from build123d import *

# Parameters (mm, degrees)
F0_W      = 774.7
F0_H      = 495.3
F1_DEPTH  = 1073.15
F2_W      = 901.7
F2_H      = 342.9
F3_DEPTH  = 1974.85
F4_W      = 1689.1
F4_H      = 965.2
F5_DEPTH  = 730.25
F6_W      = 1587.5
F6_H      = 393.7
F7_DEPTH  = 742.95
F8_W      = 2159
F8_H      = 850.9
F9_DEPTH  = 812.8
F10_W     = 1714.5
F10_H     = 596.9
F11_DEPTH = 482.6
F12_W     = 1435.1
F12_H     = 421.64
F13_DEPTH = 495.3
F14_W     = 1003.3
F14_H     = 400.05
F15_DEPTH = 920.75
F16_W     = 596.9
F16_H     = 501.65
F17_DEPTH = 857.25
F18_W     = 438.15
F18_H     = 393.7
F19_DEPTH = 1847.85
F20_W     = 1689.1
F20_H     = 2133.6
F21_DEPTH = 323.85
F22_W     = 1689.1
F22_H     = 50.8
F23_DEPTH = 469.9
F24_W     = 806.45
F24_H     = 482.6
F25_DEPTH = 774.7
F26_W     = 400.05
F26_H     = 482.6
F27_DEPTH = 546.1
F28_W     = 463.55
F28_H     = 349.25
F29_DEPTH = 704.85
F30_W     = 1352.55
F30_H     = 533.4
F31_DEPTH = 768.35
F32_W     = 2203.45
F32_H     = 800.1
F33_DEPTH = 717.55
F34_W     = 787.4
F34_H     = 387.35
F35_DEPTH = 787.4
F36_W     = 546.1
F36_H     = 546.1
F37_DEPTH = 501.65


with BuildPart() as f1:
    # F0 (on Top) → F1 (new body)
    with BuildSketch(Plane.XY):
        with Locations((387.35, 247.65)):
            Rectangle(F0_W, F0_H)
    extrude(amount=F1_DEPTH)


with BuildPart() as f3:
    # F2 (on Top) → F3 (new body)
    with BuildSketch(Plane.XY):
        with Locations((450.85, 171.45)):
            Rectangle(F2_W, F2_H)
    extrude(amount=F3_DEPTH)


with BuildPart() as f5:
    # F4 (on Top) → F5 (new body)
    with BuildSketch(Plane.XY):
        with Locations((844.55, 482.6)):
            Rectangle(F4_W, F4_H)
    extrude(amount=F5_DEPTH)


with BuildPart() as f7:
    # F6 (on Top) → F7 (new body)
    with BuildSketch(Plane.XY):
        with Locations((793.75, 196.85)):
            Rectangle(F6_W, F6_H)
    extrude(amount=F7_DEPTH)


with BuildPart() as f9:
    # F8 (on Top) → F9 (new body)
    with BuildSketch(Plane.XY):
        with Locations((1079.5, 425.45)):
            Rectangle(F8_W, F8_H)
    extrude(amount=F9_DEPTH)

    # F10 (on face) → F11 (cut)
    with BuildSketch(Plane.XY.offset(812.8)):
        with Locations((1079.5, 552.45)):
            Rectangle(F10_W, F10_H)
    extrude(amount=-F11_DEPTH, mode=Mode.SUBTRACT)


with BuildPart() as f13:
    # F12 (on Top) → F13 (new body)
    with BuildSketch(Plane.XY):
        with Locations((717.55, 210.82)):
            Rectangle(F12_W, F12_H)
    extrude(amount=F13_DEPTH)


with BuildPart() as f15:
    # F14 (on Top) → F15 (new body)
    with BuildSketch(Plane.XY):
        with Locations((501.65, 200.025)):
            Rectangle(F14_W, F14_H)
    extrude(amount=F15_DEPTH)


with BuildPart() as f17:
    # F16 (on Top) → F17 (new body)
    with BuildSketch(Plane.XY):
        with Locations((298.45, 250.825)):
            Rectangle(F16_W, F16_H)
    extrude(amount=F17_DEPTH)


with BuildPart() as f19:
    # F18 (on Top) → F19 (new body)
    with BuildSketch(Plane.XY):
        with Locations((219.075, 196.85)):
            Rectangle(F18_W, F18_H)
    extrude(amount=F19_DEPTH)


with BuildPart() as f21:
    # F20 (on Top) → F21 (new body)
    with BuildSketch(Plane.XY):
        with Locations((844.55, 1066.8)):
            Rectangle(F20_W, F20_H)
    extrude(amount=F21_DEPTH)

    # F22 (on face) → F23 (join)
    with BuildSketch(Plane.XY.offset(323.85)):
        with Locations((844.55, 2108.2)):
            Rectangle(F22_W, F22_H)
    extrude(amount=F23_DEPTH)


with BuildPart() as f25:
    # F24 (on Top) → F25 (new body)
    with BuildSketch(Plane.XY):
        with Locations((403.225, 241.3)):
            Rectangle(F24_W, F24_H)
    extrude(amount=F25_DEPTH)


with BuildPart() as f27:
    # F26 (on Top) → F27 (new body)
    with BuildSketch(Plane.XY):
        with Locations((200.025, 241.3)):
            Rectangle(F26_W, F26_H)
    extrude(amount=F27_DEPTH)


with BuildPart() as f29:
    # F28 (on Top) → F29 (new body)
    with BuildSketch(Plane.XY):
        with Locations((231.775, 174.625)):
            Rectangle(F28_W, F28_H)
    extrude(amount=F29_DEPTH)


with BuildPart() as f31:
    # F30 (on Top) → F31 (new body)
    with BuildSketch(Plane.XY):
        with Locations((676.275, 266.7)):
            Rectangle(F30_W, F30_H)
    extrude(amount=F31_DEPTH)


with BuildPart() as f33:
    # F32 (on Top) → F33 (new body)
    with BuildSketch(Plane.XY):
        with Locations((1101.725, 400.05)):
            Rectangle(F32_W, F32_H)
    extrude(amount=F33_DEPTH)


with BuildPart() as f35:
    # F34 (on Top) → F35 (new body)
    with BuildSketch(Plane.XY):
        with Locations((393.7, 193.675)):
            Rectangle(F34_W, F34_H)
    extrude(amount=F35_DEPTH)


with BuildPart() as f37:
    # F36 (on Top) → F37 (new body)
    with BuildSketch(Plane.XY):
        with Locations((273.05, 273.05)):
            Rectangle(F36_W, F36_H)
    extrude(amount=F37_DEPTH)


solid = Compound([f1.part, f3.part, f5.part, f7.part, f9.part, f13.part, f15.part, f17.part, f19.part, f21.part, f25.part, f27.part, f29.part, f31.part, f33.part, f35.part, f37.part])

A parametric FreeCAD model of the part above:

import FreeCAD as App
import Part
import Sketcher
from FreeCAD import Vector
Q = App.Units.Quantity

doc = App.newDocument("Part")
body = doc.addObject("PartDesign::Body", "Body")

# Sketch on XY plane
sketch1 = body.newObject("Sketcher::SketchObject", "Sketch")
sketch1.AttachmentSupport = (doc.getObject("XY_Plane"), [""])
sketch1.MapMode = "FlatFace"
sketch1.addGeometry([
    Part.LineSegment(Vector(0, 495, 0), Vector(0, 0, 0)),
    Part.LineSegment(Vector(0, 0, 0), Vector(775, 0, 0)),
    Part.LineSegment(Vector(775, 0, 0), Vector(775, 495, 0)),
    Part.LineSegment(Vector(775, 495, 0), Vector(0, 495, 0)),
], False)
sketch1.addConstraint([
    Sketcher.Constraint("Coincident", 0, 2, 1, 1),
    Sketcher.Constraint("Coincident", 1, 2, 2, 1),
    Sketcher.Constraint("Coincident", 2, 2, 3, 1),
    Sketcher.Constraint("Coincident", 3, 2, 0, 1),
    Sketcher.Constraint("Vertical", 0),
    Sketcher.Constraint("Horizontal", 1),
    Sketcher.Constraint("Vertical", 2),
    Sketcher.Constraint("Horizontal", 3),
    Sketcher.Constraint("Coincident", 0, 2, -1, 1),
    Sketcher.Constraint("DistanceX", 1, 1, 1, 2, Q("30.5 in")),
    Sketcher.Constraint("DistanceY", 0, 2, 0, 1, Q("19.5 in")),
])
pad1 = body.newObject("PartDesign::Pad", "Pad")
pad1.Profile = sketch1
pad1.Length = Q("42.25 in")
body2 = doc.addObject("PartDesign::Body", "Body001")

# Sketch on XY plane
sketch2 = body2.newObject("Sketcher::SketchObject", "Sketch001")
sketch2.AttachmentSupport = (doc.getObject("XY_Plane001"), [""])
sketch2.MapMode = "FlatFace"
sketch2.addGeometry([
    Part.LineSegment(Vector(0, 343, 0), Vector(0, 0, 0)),
    Part.LineSegment(Vector(0, 0, 0), Vector(902, 0, 0)),
    Part.LineSegment(Vector(902, 0, 0), Vector(902, 343, 0)),
    Part.LineSegment(Vector(902, 343, 0), Vector(0, 343, 0)),
], False)
sketch2.addConstraint([
    Sketcher.Constraint("Coincident", 0, 2, 1, 1),
    Sketcher.Constraint("Coincident", 1, 2, 2, 1),
    Sketcher.Constraint("Coincident", 2, 2, 3, 1),
    Sketcher.Constraint("Coincident", 3, 2, 0, 1),
    Sketcher.Constraint("Vertical", 0),
    Sketcher.Constraint("Horizontal", 1),
    Sketcher.Constraint("Vertical", 2),
    Sketcher.Constraint("Horizontal", 3),
    Sketcher.Constraint("Coincident", 0, 2, -1, 1),
    Sketcher.Constraint("DistanceX", 1, 1, 1, 2, Q("35.5 in")),
    Sketcher.Constraint("DistanceY", 0, 2, 0, 1, Q("13.5 in")),
])
pad2 = body2.newObject("PartDesign::Pad", "Pad001")
pad2.Profile = sketch2
pad2.Length = Q("77.75 in")
body3 = doc.addObject("PartDesign::Body", "Body002")

# Sketch on XY plane
sketch3 = body3.newObject("Sketcher::SketchObject", "Sketch002")
sketch3.AttachmentSupport = (doc.getObject("XY_Plane002"), [""])
sketch3.MapMode = "FlatFace"
sketch3.addGeometry([
    Part.LineSegment(Vector(0, 965, 0), Vector(0, 0, 0)),
    Part.LineSegment(Vector(0, 0, 0), Vector(1689, 0, 0)),
    Part.LineSegment(Vector(1689, 0, 0), Vector(1689, 965, 0)),
    Part.LineSegment(Vector(1689, 965, 0), Vector(0, 965, 0)),
], False)
sketch3.addConstraint([
    Sketcher.Constraint("Coincident", 0, 2, 1, 1),
    Sketcher.Constraint("Coincident", 1, 2, 2, 1),
    Sketcher.Constraint("Coincident", 2, 2, 3, 1),
    Sketcher.Constraint("Coincident", 3, 2, 0, 1),
    Sketcher.Constraint("Vertical", 0),
    Sketcher.Constraint("Horizontal", 1),
    Sketcher.Constraint("Vertical", 2),
    Sketcher.Constraint("Horizontal", 3),
    Sketcher.Constraint("Coincident", 0, 2, -1, 1),
    Sketcher.Constraint("DistanceY", 0, 2, 0, 1, Q("38 in")),
    Sketcher.Constraint("DistanceX", 1, 1, 1, 2, Q("66.5 in")),
])
pad3 = body3.newObject("PartDesign::Pad", "Pad002")
pad3.Profile = sketch3
pad3.Length = Q("28.75 in")
body4 = doc.addObject("PartDesign::Body", "Body003")

# Sketch on XY plane
sketch4 = body4.newObject("Sketcher::SketchObject", "Sketch003")
sketch4.AttachmentSupport = (doc.getObject("XY_Plane003"), [""])
sketch4.MapMode = "FlatFace"
sketch4.addGeometry([
    Part.LineSegment(Vector(0, 394, 0), Vector(0, 0, 0)),
    Part.LineSegment(Vector(0, 0, 0), Vector(1588, 0, 0)),
    Part.LineSegment(Vector(1588, 0, 0), Vector(1588, 394, 0)),
    Part.LineSegment(Vector(1588, 394, 0), Vector(0, 394, 0)),
], False)
sketch4.addConstraint([
    Sketcher.Constraint("Coincident", 0, 2, 1, 1),
    Sketcher.Constraint("Coincident", 1, 2, 2, 1),
    Sketcher.Constraint("Coincident", 2, 2, 3, 1),
    Sketcher.Constraint("Coincident", 3, 2, 0, 1),
    Sketcher.Constraint("Vertical", 0),
    Sketcher.Constraint("Horizontal", 1),
    Sketcher.Constraint("Vertical", 2),
    Sketcher.Constraint("Horizontal", 3),
    Sketcher.Constraint("Coincident", 0, 2, -1, 1),
    Sketcher.Constraint("DistanceX", 1, 1, 1, 2, Q("62.5 in")),
    Sketcher.Constraint("DistanceY", 0, 2, 0, 1, Q("15.5 in")),
])
pad4 = body4.newObject("PartDesign::Pad", "Pad003")
pad4.Profile = sketch4
pad4.Length = Q("29.25 in")
body5 = doc.addObject("PartDesign::Body", "Body004")

# Sketch on XY plane
sketch5 = body5.newObject("Sketcher::SketchObject", "Sketch004")
sketch5.AttachmentSupport = (doc.getObject("XY_Plane004"), [""])
sketch5.MapMode = "FlatFace"
sketch5.addGeometry([
    Part.LineSegment(Vector(0, 851, 0), Vector(0, 0, 0)),
    Part.LineSegment(Vector(0, 0, 0), Vector(2159, 0, 0)),
    Part.LineSegment(Vector(2159, 0, 0), Vector(2159, 851, 0)),
    Part.LineSegment(Vector(2159, 851, 0), Vector(0, 851, 0)),
], False)
sketch5.addConstraint([
    Sketcher.Constraint("Coincident", 0, 2, 1, 1),
    Sketcher.Constraint("Coincident", 1, 2, 2, 1),
    Sketcher.Constraint("Coincident", 2, 2, 3, 1),
    Sketcher.Constraint("Coincident", 3, 2, 0, 1),
    Sketcher.Constraint("Vertical", 0),
    Sketcher.Constraint("Horizontal", 1),
    Sketcher.Constraint("Vertical", 2),
    Sketcher.Constraint("Horizontal", 3),
    Sketcher.Constraint("Coincident", 0, 2, -1, 1),
    Sketcher.Constraint("DistanceX", 1, 1, 1, 2, Q("85 in")),
    Sketcher.Constraint("DistanceY", 0, 2, 0, 1, Q("33.5 in")),
])
pad5 = body5.newObject("PartDesign::Pad", "Pad004")
pad5.Profile = sketch5
pad5.Length = Q("32 in")

# Sketch on XY plane
sketch6 = body5.newObject("Sketcher::SketchObject", "Sketch005")
sketch6.AttachmentSupport = (doc.getObject("XY_Plane004"), [""])
sketch6.MapMode = "FlatFace"
sketch6.AttachmentOffset = App.Placement(Vector(0, 0, 32 * 25.4), App.Rotation())
sketch6.addGeometry([
    Part.LineSegment(Vector(222, 851, 0), Vector(222, 254, 0)),
    Part.LineSegment(Vector(222, 254, 0), Vector(1937, 254, 0)),
    Part.LineSegment(Vector(1937, 254, 0), Vector(1937, 851, 0)),
    Part.LineSegment(Vector(1937, 851, 0), Vector(222, 851, 0)),
], False)
sketch6.addConstraint([
    Sketcher.Constraint("Coincident", 0, 2, 1, 1),
    Sketcher.Constraint("Coincident", 1, 2, 2, 1),
    Sketcher.Constraint("Coincident", 2, 2, 3, 1),
    Sketcher.Constraint("Coincident", 3, 2, 0, 1),
    Sketcher.Constraint("Vertical", 0),
    Sketcher.Constraint("Horizontal", 1),
    Sketcher.Constraint("Vertical", 2),
    Sketcher.Constraint("Horizontal", 3),
    Sketcher.Constraint("DistanceX", 1, 1, 1, 2, Q("67.5 in")),
    Sketcher.Constraint("DistanceY", 0, 2, 0, 1, Q("23.5 in")),
    Sketcher.Constraint("DistanceY", -1, 1, 0, 2, Q("10 in")),
    Sketcher.Constraint("DistanceX", -1, 1, 0, 2, Q("8.75 in")),
])
pocket1 = body5.newObject("PartDesign::Pocket", "Pocket")
pocket1.Profile = sketch6
pocket1.Length = Q("19 in")
body6 = doc.addObject("PartDesign::Body", "Body005")

# Sketch on XY plane
sketch7 = body6.newObject("Sketcher::SketchObject", "Sketch006")
sketch7.AttachmentSupport = (doc.getObject("XY_Plane005"), [""])
sketch7.MapMode = "FlatFace"
sketch7.addGeometry([
    Part.LineSegment(Vector(0, 422, 0), Vector(0, 0, 0)),
    Part.LineSegment(Vector(0, 0, 0), Vector(1435, 0, 0)),
    Part.LineSegment(Vector(1435, 0, 0), Vector(1435, 422, 0)),
    Part.LineSegment(Vector(1435, 422, 0), Vector(0, 422, 0)),
], False)
sketch7.addConstraint([
    Sketcher.Constraint("Coincident", 0, 2, 1, 1),
    Sketcher.Constraint("Coincident", 1, 2, 2, 1),
    Sketcher.Constraint("Coincident", 2, 2, 3, 1),
    Sketcher.Constraint("Coincident", 3, 2, 0, 1),
    Sketcher.Constraint("Vertical", 0),
    Sketcher.Constraint("Horizontal", 1),
    Sketcher.Constraint("Vertical", 2),
    Sketcher.Constraint("Horizontal", 3),
    Sketcher.Constraint("Coincident", 0, 2, -1, 1),
    Sketcher.Constraint("DistanceX", 1, 1, 1, 2, Q("56.5 in")),
    Sketcher.Constraint("DistanceY", 0, 2, 0, 1, Q("16.6 in")),
])
pad6 = body6.newObject("PartDesign::Pad", "Pad005")
pad6.Profile = sketch7
pad6.Length = Q("19.5 in")
body7 = doc.addObject("PartDesign::Body", "Body006")

# Sketch on XY plane
sketch8 = body7.newObject("Sketcher::SketchObject", "Sketch007")
sketch8.AttachmentSupport = (doc.getObject("XY_Plane006"), [""])
sketch8.MapMode = "FlatFace"
sketch8.addGeometry([
    Part.LineSegment(Vector(0, 400, 0), Vector(0, 0, 0)),
    Part.LineSegment(Vector(0, 0, 0), Vector(1003, 0, 0)),
    Part.LineSegment(Vector(1003, 0, 0), Vector(1003, 400, 0)),
    Part.LineSegment(Vector(1003, 400, 0), Vector(0, 400, 0)),
], False)
sketch8.addConstraint([
    Sketcher.Constraint("Coincident", 0, 2, 1, 1),
    Sketcher.Constraint("Coincident", 1, 2, 2, 1),
    Sketcher.Constraint("Coincident", 2, 2, 3, 1),
    Sketcher.Constraint("Coincident", 3, 2, 0, 1),
    Sketcher.Constraint("Vertical", 0),
    Sketcher.Constraint("Horizontal", 1),
    Sketcher.Constraint("Vertical", 2),
    Sketcher.Constraint("Horizontal", 3),
    Sketcher.Constraint("Coincident", 0, 2, -1, 1),
    Sketcher.Constraint("DistanceX", 1, 1, 1, 2, Q("39.5 in")),
    Sketcher.Constraint("DistanceY", 0, 2, 0, 1, Q("15.75 in")),
])
pad7 = body7.newObject("PartDesign::Pad", "Pad006")
pad7.Profile = sketch8
pad7.Length = Q("36.25 in")
body8 = doc.addObject("PartDesign::Body", "Body007")

# Sketch on XY plane
sketch9 = body8.newObject("Sketcher::SketchObject", "Sketch008")
sketch9.AttachmentSupport = (doc.getObject("XY_Plane007"), [""])
sketch9.MapMode = "FlatFace"
sketch9.addGeometry([
    Part.LineSegment(Vector(0, 502, 0), Vector(0, 0, 0)),
    Part.LineSegment(Vector(0, 0, 0), Vector(597, 0, 0)),
    Part.LineSegment(Vector(597, 0, 0), Vector(597, 502, 0)),
    Part.LineSegment(Vector(597, 502, 0), Vector(0, 502, 0)),
], False)
sketch9.addConstraint([
    Sketcher.Constraint("Coincident", 0, 2, 1, 1),
    Sketcher.Constraint("Coincident", 1, 2, 2, 1),
    Sketcher.Constraint("Coincident", 2, 2, 3, 1),
    Sketcher.Constraint("Coincident", 3, 2, 0, 1),
    Sketcher.Constraint("Vertical", 0),
    Sketcher.Constraint("Horizontal", 1),
    Sketcher.Constraint("Vertical", 2),
    Sketcher.Constraint("Horizontal", 3),
    Sketcher.Constraint("Coincident", 0, 2, -1, 1),
    Sketcher.Constraint("DistanceX", 1, 1, 1, 2, Q("23.5 in")),
    Sketcher.Constraint("DistanceY", 0, 2, 0, 1, Q("19.75 in")),
])
pad8 = body8.newObject("PartDesign::Pad", "Pad007")
pad8.Profile = sketch9
pad8.Length = Q("33.75 in")
body9 = doc.addObject("PartDesign::Body", "Body008")

# Sketch on XY plane
sketch10 = body9.newObject("Sketcher::SketchObject", "Sketch009")
sketch10.AttachmentSupport = (doc.getObject("XY_Plane008"), [""])
sketch10.MapMode = "FlatFace"
sketch10.addGeometry([
    Part.LineSegment(Vector(0, 394, 0), Vector(0, 0, 0)),
    Part.LineSegment(Vector(0, 0, 0), Vector(438, 0, 0)),
    Part.LineSegment(Vector(438, 0, 0), Vector(438, 394, 0)),
    Part.LineSegment(Vector(438, 394, 0), Vector(0, 394, 0)),
], False)
sketch10.addConstraint([
    Sketcher.Constraint("Coincident", 0, 2, 1, 1),
    Sketcher.Constraint("Coincident", 1, 2, 2, 1),
    Sketcher.Constraint("Coincident", 2, 2, 3, 1),
    Sketcher.Constraint("Coincident", 3, 2, 0, 1),
    Sketcher.Constraint("Vertical", 0),
    Sketcher.Constraint("Horizontal", 1),
    Sketcher.Constraint("Vertical", 2),
    Sketcher.Constraint("Horizontal", 3),
    Sketcher.Constraint("Coincident", 0, 2, -1, 1),
    Sketcher.Constraint("DistanceY", 0, 2, 0, 1, Q("15.5 in")),
    Sketcher.Constraint("DistanceX", 1, 1, 1, 2, Q("17.25 in")),
])
pad9 = body9.newObject("PartDesign::Pad", "Pad008")
pad9.Profile = sketch10
pad9.Length = Q("72.75 in")
body10 = doc.addObject("PartDesign::Body", "Body009")

# Sketch on XY plane
sketch11 = body10.newObject("Sketcher::SketchObject", "Sketch010")
sketch11.AttachmentSupport = (doc.getObject("XY_Plane009"), [""])
sketch11.MapMode = "FlatFace"
sketch11.addGeometry([
    Part.LineSegment(Vector(0, 2134, 0), Vector(0, 0, 0)),
    Part.LineSegment(Vector(0, 0, 0), Vector(1689, 0, 0)),
    Part.LineSegment(Vector(1689, 0, 0), Vector(1689, 2134, 0)),
    Part.LineSegment(Vector(1689, 2134, 0), Vector(0, 2134, 0)),
], False)
sketch11.addConstraint([
    Sketcher.Constraint("Coincident", 0, 2, 1, 1),
    Sketcher.Constraint("Coincident", 1, 2, 2, 1),
    Sketcher.Constraint("Coincident", 2, 2, 3, 1),
    Sketcher.Constraint("Coincident", 3, 2, 0, 1),
    Sketcher.Constraint("Vertical", 0),
    Sketcher.Constraint("Horizontal", 1),
    Sketcher.Constraint("Vertical", 2),
    Sketcher.Constraint("Horizontal", 3),
    Sketcher.Constraint("Coincident", 0, 2, -1, 1),
    Sketcher.Constraint("DistanceY", 0, 2, 0, 1, Q("84 in")),
    Sketcher.Constraint("DistanceX", 1, 1, 1, 2, Q("66.5 in")),
])
pad10 = body10.newObject("PartDesign::Pad", "Pad009")
pad10.Profile = sketch11
pad10.Length = Q("12.75 in")

# Sketch on XY plane
sketch12 = body10.newObject("Sketcher::SketchObject", "Sketch011")
sketch12.AttachmentSupport = (doc.getObject("XY_Plane009"), [""])
sketch12.MapMode = "FlatFace"
sketch12.AttachmentOffset = App.Placement(Vector(0, 0, 12.75 * 25.4), App.Rotation())
sketch12.addGeometry([
    Part.LineSegment(Vector(0, 2134, 0), Vector(0, 2083, 0)),
    Part.LineSegment(Vector(0, 2083, 0), Vector(1689, 2083, 0)),
    Part.LineSegment(Vector(1689, 2083, 0), Vector(1689, 2134, 0)),
    Part.LineSegment(Vector(1689, 2134, 0), Vector(0, 2134, 0)),
], False)
sketch12.addConstraint([
    Sketcher.Constraint("Coincident", 0, 2, 1, 1),
    Sketcher.Constraint("Coincident", 1, 2, 2, 1),
    Sketcher.Constraint("Coincident", 2, 2, 3, 1),
    Sketcher.Constraint("Coincident", 3, 2, 0, 1),
    Sketcher.Constraint("Vertical", 0),
    Sketcher.Constraint("Horizontal", 1),
    Sketcher.Constraint("Vertical", 2),
    Sketcher.Constraint("Horizontal", 3),
    Sketcher.Constraint("PointOnObject", 0, 2, -2),
    Sketcher.Constraint("DistanceY", 0, 2, 0, 1, Q("2 in")),
    Sketcher.Constraint("DistanceX", 1, 1, 1, 2, Q("66.5 in")),
    Sketcher.Constraint("DistanceY", -1, 1, 0, 2, Q("82 in")),
])
pad11 = body10.newObject("PartDesign::Pad", "Pad010")
pad11.Profile = sketch12
pad11.Length = Q("18.5 in")
body11 = doc.addObject("PartDesign::Body", "Body010")

# Sketch on XY plane
sketch13 = body11.newObject("Sketcher::SketchObject", "Sketch012")
sketch13.AttachmentSupport = (doc.getObject("XY_Plane010"), [""])
sketch13.MapMode = "FlatFace"
sketch13.addGeometry([
    Part.LineSegment(Vector(0, 483, 0), Vector(0, 0, 0)),
    Part.LineSegment(Vector(0, 0, 0), Vector(806, 0, 0)),
    Part.LineSegment(Vector(806, 0, 0), Vector(806, 483, 0)),
    Part.LineSegment(Vector(806, 483, 0), Vector(0, 483, 0)),
], False)
sketch13.addConstraint([
    Sketcher.Constraint("Coincident", 0, 2, 1, 1),
    Sketcher.Constraint("Coincident", 1, 2, 2, 1),
    Sketcher.Constraint("Coincident", 2, 2, 3, 1),
    Sketcher.Constraint("Coincident", 3, 2, 0, 1),
    Sketcher.Constraint("Vertical", 0),
    Sketcher.Constraint("Horizontal", 1),
    Sketcher.Constraint("Vertical", 2),
    Sketcher.Constraint("Horizontal", 3),
    Sketcher.Constraint("Coincident", 0, 2, -1, 1),
    Sketcher.Constraint("DistanceY", 0, 2, 0, 1, Q("19 in")),
    Sketcher.Constraint("DistanceX", 1, 1, 1, 2, Q("31.75 in")),
])
pad12 = body11.newObject("PartDesign::Pad", "Pad011")
pad12.Profile = sketch13
pad12.Length = Q("30.5 in")
body12 = doc.addObject("PartDesign::Body", "Body011")

# Sketch on XY plane
sketch14 = body12.newObject("Sketcher::SketchObject", "Sketch013")
sketch14.AttachmentSupport = (doc.getObject("XY_Plane011"), [""])
sketch14.MapMode = "FlatFace"
sketch14.addGeometry([
    Part.LineSegment(Vector(0, 483, 0), Vector(0, 0, 0)),
    Part.LineSegment(Vector(0, 0, 0), Vector(400, 0, 0)),
    Part.LineSegment(Vector(400, 0, 0), Vector(400, 483, 0)),
    Part.LineSegment(Vector(400, 483, 0), Vector(0, 483, 0)),
], False)
sketch14.addConstraint([
    Sketcher.Constraint("Coincident", 0, 2, 1, 1),
    Sketcher.Constraint("Coincident", 1, 2, 2, 1),
    Sketcher.Constraint("Coincident", 2, 2, 3, 1),
    Sketcher.Constraint("Coincident", 3, 2, 0, 1),
    Sketcher.Constraint("Vertical", 0),
    Sketcher.Constraint("Horizontal", 1),
    Sketcher.Constraint("Vertical", 2),
    Sketcher.Constraint("Horizontal", 3),
    Sketcher.Constraint("Coincident", 0, 2, -1, 1),
    Sketcher.Constraint("DistanceY", 0, 2, 0, 1, Q("19 in")),
    Sketcher.Constraint("DistanceX", 1, 1, 1, 2, Q("15.75 in")),
])
pad13 = body12.newObject("PartDesign::Pad", "Pad012")
pad13.Profile = sketch14
pad13.Length = Q("21.5 in")
body13 = doc.addObject("PartDesign::Body", "Body012")

# Sketch on XY plane
sketch15 = body13.newObject("Sketcher::SketchObject", "Sketch014")
sketch15.AttachmentSupport = (doc.getObject("XY_Plane012"), [""])
sketch15.MapMode = "FlatFace"
sketch15.addGeometry([
    Part.LineSegment(Vector(0, 349, 0), Vector(0, 0, 0)),
    Part.LineSegment(Vector(0, 0, 0), Vector(464, 0, 0)),
    Part.LineSegment(Vector(464, 0, 0), Vector(464, 349, 0)),
    Part.LineSegment(Vector(464, 349, 0), Vector(0, 349, 0)),
], False)
sketch15.addConstraint([
    Sketcher.Constraint("Coincident", 0, 2, 1, 1),
    Sketcher.Constraint("Coincident", 1, 2, 2, 1),
    Sketcher.Constraint("Coincident", 2, 2, 3, 1),
    Sketcher.Constraint("Coincident", 3, 2, 0, 1),
    Sketcher.Constraint("Vertical", 0),
    Sketcher.Constraint("Horizontal", 1),
    Sketcher.Constraint("Vertical", 2),
    Sketcher.Constraint("Horizontal", 3),
    Sketcher.Constraint("Coincident", 0, 2, -1, 1),
    Sketcher.Constraint("DistanceX", 1, 1, 1, 2, Q("18.25 in")),
    Sketcher.Constraint("DistanceY", 0, 2, 0, 1, Q("13.75 in")),
])
pad14 = body13.newObject("PartDesign::Pad", "Pad013")
pad14.Profile = sketch15
pad14.Length = Q("27.75 in")
body14 = doc.addObject("PartDesign::Body", "Body013")

# Sketch on XY plane
sketch16 = body14.newObject("Sketcher::SketchObject", "Sketch015")
sketch16.AttachmentSupport = (doc.getObject("XY_Plane013"), [""])
sketch16.MapMode = "FlatFace"
sketch16.addGeometry([
    Part.LineSegment(Vector(0, 533, 0), Vector(0, 0, 0)),
    Part.LineSegment(Vector(0, 0, 0), Vector(1353, 0, 0)),
    Part.LineSegment(Vector(1353, 0, 0), Vector(1353, 533, 0)),
    Part.LineSegment(Vector(1353, 533, 0), Vector(0, 533, 0)),
], False)
sketch16.addConstraint([
    Sketcher.Constraint("Coincident", 0, 2, 1, 1),
    Sketcher.Constraint("Coincident", 1, 2, 2, 1),
    Sketcher.Constraint("Coincident", 2, 2, 3, 1),
    Sketcher.Constraint("Coincident", 3, 2, 0, 1),
    Sketcher.Constraint("Vertical", 0),
    Sketcher.Constraint("Horizontal", 1),
    Sketcher.Constraint("Vertical", 2),
    Sketcher.Constraint("Horizontal", 3),
    Sketcher.Constraint("Coincident", 0, 2, -1, 1),
    Sketcher.Constraint("DistanceY", 0, 2, 0, 1, Q("21 in")),
    Sketcher.Constraint("DistanceX", 1, 1, 1, 2, Q("53.25 in")),
])
pad15 = body14.newObject("PartDesign::Pad", "Pad014")
pad15.Profile = sketch16
pad15.Length = Q("30.25 in")
body15 = doc.addObject("PartDesign::Body", "Body014")

# Sketch on XY plane
sketch17 = body15.newObject("Sketcher::SketchObject", "Sketch016")
sketch17.AttachmentSupport = (doc.getObject("XY_Plane014"), [""])
sketch17.MapMode = "FlatFace"
sketch17.addGeometry([
    Part.LineSegment(Vector(0, 800, 0), Vector(0, 0, 0)),
    Part.LineSegment(Vector(0, 0, 0), Vector(2203, 0, 0)),
    Part.LineSegment(Vector(2203, 0, 0), Vector(2203, 800, 0)),
    Part.LineSegment(Vector(2203, 800, 0), Vector(0, 800, 0)),
], False)
sketch17.addConstraint([
    Sketcher.Constraint("Coincident", 0, 2, 1, 1),
    Sketcher.Constraint("Coincident", 1, 2, 2, 1),
    Sketcher.Constraint("Coincident", 2, 2, 3, 1),
    Sketcher.Constraint("Coincident", 3, 2, 0, 1),
    Sketcher.Constraint("Vertical", 0),
    Sketcher.Constraint("Horizontal", 1),
    Sketcher.Constraint("Vertical", 2),
    Sketcher.Constraint("Horizontal", 3),
    Sketcher.Constraint("Coincident", 0, 2, -1, 1),
    Sketcher.Constraint("DistanceY", 0, 2, 0, 1, Q("31.5 in")),
    Sketcher.Constraint("DistanceX", 1, 1, 1, 2, Q("86.75 in")),
])
pad16 = body15.newObject("PartDesign::Pad", "Pad015")
pad16.Profile = sketch17
pad16.Length = Q("28.25 in")
body16 = doc.addObject("PartDesign::Body", "Body015")

# Sketch on XY plane
sketch18 = body16.newObject("Sketcher::SketchObject", "Sketch017")
sketch18.AttachmentSupport = (doc.getObject("XY_Plane015"), [""])
sketch18.MapMode = "FlatFace"
sketch18.addGeometry([
    Part.LineSegment(Vector(0, 387, 0), Vector(0, 0, 0)),
    Part.LineSegment(Vector(0, 0, 0), Vector(787, 0, 0)),
    Part.LineSegment(Vector(787, 0, 0), Vector(787, 387, 0)),
    Part.LineSegment(Vector(787, 387, 0), Vector(0, 387, 0)),
], False)
sketch18.addConstraint([
    Sketcher.Constraint("Coincident", 0, 2, 1, 1),
    Sketcher.Constraint("Coincident", 1, 2, 2, 1),
    Sketcher.Constraint("Coincident", 2, 2, 3, 1),
    Sketcher.Constraint("Coincident", 3, 2, 0, 1),
    Sketcher.Constraint("Vertical", 0),
    Sketcher.Constraint("Horizontal", 1),
    Sketcher.Constraint("Vertical", 2),
    Sketcher.Constraint("Horizontal", 3),
    Sketcher.Constraint("Coincident", 0, 2, -1, 1),
    Sketcher.Constraint("DistanceX", 1, 1, 1, 2, Q("31 in")),
    Sketcher.Constraint("DistanceY", 0, 2, 0, 1, Q("15.25 in")),
])
pad17 = body16.newObject("PartDesign::Pad", "Pad016")
pad17.Profile = sketch18
pad17.Length = Q("31 in")
body17 = doc.addObject("PartDesign::Body", "Body016")

# Sketch on XY plane
sketch19 = body17.newObject("Sketcher::SketchObject", "Sketch018")
sketch19.AttachmentSupport = (doc.getObject("XY_Plane016"), [""])
sketch19.MapMode = "FlatFace"
sketch19.addGeometry([
    Part.LineSegment(Vector(0, 546, 0), Vector(0, 0, 0)),
    Part.LineSegment(Vector(0, 0, 0), Vector(546, 0, 0)),
    Part.LineSegment(Vector(546, 0, 0), Vector(546, 546, 0)),
    Part.LineSegment(Vector(546, 546, 0), Vector(0, 546, 0)),
], False)
sketch19.addConstraint([
    Sketcher.Constraint("Coincident", 0, 2, 1, 1),
    Sketcher.Constraint("Coincident", 1, 2, 2, 1),
    Sketcher.Constraint("Coincident", 2, 2, 3, 1),
    Sketcher.Constraint("Coincident", 3, 2, 0, 1),
    Sketcher.Constraint("Vertical", 0),
    Sketcher.Constraint("Horizontal", 1),
    Sketcher.Constraint("Vertical", 2),
    Sketcher.Constraint("Horizontal", 3),
    Sketcher.Constraint("Coincident", 0, 2, -1, 1),
    Sketcher.Constraint("Equal", 3, 0),
    Sketcher.Constraint("DistanceX", 1, 1, 1, 2, Q("21.5 in")),
])
pad18 = body17.newObject("PartDesign::Pad", "Pad017")
pad18.Profile = sketch19
pad18.Length = Q("19.75 in")

doc.recompute()
